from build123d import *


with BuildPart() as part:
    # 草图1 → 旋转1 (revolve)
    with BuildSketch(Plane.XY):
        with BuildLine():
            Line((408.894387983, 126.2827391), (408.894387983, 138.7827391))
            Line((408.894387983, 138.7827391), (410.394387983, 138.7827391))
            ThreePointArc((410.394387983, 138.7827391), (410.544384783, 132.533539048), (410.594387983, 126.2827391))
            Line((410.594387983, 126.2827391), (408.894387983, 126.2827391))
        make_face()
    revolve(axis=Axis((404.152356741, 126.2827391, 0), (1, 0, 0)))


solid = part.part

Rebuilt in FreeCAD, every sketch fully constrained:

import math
import FreeCAD as App
import Part
import Sketcher
from FreeCAD import Vector
Q = App.Units.Quantity

doc = App.newDocument("Part")
body = doc.addObject("PartDesign::Body", "Body")

# Sketch on XY plane
sketch1 = body.newObject("Sketcher::SketchObject", "Sketch")
sketch1.AttachmentSupport = (doc.getObject("XY_Plane"), [""])
sketch1.MapMode = "FlatFace"
sketch1.addGeometry([
    Part.LineSegment(Vector(408.9, 138.8, 0), Vector(408.9, 126.3, 0)),
    Part.LineSegment(Vector(408.9, 126.3, 0), Vector(410.6, 126.3, 0)),
    Part.ArcOfCircle(Part.Circle(Vector(19.9, 126.3, 0), Vector(0, 0, 1), 390.7), math.radians(0), math.radians(1.83)),
    Part.LineSegment(Vector(410.4, 138.8, 0), Vector(408.9, 138.8, 0)),
], False)
sketch1.addGeometry(Part.LineSegment(Vector(19.9, 126.3, 0), Vector(410.6, 126.3, 0)), True)  # axis
sketch1.addConstraint([
    Sketcher.Constraint("Coincident", 0, 2, 1, 1),
    Sketcher.Constraint("Coincident", 1, 2, 2, 1),
    Sketcher.Constraint("Coincident", 2, 2, 3, 1),
    Sketcher.Constraint("Coincident", 3, 2, 0, 1),
    Sketcher.Constraint("Vertical", 0),
    Sketcher.Constraint("Horizontal", 1),
    Sketcher.Constraint("Horizontal", 3),
    Sketcher.Constraint("Horizontal", 4),
    Sketcher.Constraint("Coincident", 4, 1, 2, 3),
    Sketcher.Constraint("Coincident", 4, 2, 1, 2),
    Sketcher.Constraint("DistanceX", 1, 1, 1, 2, Q("1.7 mm")),
    Sketcher.Constraint("DistanceX", 3, 2, 3, 1, Q("1.5 mm")),
    Sketcher.Constraint("DistanceY", 0, 2, 0, 1, Q("12.5 mm")),
    Sketcher.Constraint("DistanceY", -1, 1, 2, 3, Q("126.282739 mm")),
    Sketcher.Constraint("DistanceX", -1, 1, 2, 3, Q("19.869385 mm")),
])
revolution = body.newObject("PartDesign::Revolution", "Revolution")
revolution.Profile = sketch1
revolution.ReferenceAxis = (sketch1, ["Axis0"])
revolution.Angle = 360

doc.recompute()
